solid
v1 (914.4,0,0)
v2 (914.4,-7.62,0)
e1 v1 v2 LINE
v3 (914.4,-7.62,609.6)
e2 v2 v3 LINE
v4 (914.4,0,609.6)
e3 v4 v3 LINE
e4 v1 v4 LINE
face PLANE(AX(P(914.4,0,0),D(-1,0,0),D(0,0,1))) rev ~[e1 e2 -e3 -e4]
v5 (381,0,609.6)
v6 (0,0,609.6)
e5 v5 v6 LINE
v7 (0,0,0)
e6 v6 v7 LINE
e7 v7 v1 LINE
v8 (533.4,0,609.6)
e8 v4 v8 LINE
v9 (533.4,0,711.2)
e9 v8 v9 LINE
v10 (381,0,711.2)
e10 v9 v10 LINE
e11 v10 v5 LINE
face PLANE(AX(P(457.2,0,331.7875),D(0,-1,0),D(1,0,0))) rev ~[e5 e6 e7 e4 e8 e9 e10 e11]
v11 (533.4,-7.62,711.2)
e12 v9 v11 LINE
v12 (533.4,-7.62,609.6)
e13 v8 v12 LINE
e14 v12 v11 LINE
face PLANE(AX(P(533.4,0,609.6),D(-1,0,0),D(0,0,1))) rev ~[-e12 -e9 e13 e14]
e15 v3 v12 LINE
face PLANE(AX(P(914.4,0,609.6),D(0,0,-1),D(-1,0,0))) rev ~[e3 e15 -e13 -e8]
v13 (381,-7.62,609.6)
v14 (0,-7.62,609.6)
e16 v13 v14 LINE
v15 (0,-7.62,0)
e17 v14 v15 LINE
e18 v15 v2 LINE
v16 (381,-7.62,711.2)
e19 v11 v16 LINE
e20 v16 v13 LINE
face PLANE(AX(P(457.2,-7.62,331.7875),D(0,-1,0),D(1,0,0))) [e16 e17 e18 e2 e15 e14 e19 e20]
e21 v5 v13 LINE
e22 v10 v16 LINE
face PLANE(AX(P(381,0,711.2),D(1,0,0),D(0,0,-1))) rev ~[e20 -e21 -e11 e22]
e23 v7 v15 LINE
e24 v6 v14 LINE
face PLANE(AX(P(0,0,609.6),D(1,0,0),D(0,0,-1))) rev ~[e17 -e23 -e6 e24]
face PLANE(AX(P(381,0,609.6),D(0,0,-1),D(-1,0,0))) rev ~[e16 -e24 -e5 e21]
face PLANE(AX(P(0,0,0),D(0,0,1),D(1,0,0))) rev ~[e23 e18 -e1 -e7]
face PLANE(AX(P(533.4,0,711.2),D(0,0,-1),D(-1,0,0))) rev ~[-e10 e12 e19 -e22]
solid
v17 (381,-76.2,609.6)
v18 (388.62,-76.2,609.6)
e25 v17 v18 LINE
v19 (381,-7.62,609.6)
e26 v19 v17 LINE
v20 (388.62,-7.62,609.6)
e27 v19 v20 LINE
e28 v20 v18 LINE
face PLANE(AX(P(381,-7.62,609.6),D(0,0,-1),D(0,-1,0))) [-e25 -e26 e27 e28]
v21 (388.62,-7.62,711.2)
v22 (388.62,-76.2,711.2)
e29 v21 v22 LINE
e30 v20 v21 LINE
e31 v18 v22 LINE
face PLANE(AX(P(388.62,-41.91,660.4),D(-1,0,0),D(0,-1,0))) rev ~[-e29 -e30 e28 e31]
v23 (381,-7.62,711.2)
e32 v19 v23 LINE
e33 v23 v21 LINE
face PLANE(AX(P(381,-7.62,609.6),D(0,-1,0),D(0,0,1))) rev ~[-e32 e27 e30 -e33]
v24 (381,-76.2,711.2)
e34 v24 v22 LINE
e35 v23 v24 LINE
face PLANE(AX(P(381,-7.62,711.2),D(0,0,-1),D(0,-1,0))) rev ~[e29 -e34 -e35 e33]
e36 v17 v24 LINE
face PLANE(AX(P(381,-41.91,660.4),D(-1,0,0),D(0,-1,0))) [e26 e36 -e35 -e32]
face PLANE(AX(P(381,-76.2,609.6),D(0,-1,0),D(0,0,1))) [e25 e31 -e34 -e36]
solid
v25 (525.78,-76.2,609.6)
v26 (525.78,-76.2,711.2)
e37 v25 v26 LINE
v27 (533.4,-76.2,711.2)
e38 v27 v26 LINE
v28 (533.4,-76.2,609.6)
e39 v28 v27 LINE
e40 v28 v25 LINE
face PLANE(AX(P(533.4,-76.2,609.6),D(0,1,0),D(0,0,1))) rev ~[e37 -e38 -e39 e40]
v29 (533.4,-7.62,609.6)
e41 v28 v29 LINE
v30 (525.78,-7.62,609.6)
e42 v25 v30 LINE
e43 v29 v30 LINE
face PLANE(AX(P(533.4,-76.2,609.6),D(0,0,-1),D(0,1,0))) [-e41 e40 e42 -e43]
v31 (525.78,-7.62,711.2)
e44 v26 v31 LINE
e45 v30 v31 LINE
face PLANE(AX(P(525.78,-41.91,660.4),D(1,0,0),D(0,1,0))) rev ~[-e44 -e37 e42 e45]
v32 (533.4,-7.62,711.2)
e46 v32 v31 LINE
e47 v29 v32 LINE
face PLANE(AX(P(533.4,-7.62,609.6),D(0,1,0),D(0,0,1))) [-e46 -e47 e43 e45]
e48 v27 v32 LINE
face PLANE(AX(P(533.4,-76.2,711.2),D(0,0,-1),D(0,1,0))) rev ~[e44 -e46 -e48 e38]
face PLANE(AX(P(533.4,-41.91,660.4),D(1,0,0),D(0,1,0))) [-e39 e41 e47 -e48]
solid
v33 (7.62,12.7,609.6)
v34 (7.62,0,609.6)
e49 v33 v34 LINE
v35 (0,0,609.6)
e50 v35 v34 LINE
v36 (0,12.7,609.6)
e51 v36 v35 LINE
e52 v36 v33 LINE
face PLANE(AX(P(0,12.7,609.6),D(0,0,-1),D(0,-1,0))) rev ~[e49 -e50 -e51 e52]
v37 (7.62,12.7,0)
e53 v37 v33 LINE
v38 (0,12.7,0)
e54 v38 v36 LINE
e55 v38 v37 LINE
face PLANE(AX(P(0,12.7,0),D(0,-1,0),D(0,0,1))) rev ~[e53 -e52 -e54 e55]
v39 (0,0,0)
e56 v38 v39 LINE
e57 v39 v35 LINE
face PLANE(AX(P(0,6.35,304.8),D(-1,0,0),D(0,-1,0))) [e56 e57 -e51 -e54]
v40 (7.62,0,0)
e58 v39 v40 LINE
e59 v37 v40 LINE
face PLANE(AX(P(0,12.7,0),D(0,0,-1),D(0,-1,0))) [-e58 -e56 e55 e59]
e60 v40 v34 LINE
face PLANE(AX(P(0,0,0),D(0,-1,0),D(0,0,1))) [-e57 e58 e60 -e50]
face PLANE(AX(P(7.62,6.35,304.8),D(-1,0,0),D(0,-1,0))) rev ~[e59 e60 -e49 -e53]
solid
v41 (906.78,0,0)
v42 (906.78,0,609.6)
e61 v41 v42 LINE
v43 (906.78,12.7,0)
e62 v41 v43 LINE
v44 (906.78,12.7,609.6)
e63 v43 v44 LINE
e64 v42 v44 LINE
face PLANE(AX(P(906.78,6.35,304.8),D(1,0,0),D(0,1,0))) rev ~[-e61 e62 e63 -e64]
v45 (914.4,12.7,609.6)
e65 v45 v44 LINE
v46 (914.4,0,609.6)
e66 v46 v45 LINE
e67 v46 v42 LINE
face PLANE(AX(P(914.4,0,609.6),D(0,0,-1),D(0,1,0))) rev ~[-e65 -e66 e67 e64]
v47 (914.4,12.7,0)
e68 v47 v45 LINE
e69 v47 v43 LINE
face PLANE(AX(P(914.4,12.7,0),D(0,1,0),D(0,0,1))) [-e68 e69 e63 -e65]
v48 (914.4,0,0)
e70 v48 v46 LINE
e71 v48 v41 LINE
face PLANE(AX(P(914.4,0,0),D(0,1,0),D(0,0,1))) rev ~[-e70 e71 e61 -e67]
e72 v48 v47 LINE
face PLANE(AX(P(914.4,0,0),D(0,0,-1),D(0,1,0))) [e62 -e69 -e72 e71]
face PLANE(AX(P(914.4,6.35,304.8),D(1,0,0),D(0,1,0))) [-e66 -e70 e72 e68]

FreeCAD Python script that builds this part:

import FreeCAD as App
import Part
import Sketcher
from FreeCAD import Vector
Q = App.Units.Quantity


def add_polygon(sketch, points):
    """Adds a closed chain of lines whose ends are joined by coincident constraints."""
    first, n = sketch.GeometryCount, len(points)
    for a, b in zip(points, points[1:] + points[:1]):
        sketch.addGeometry(Part.LineSegment(App.Vector(*a, 0), App.Vector(*b, 0)), False)
    for i in range(n):
        sketch.addConstraint(Sketcher.Constraint("Coincident", first + i, 2, first + (i + 1) % n, 1))

doc = App.newDocument("Part")
body = doc.addObject("PartDesign::Body", "Body")

sketch1 = body.newObject("Sketcher::SketchObject", "Sketch")
sketch1.AttachmentSupport = (doc.getObject("XZ_Plane"), [""])
sketch1.MapMode = "FlatFace"
add_polygon(sketch1, [(0, 610), (0, 0), (914, 0), (914, 610), (533, 610), (533, 711), (381, 711), (381, 610)])
sketch1.addConstraint(Sketcher.Constraint("Vertical", 0))
sketch1.addConstraint(Sketcher.Constraint("Horizontal", 1))
sketch1.addConstraint(Sketcher.Constraint("Vertical", 2))
sketch1.addConstraint(Sketcher.Constraint("Horizontal", 3))
sketch1.addConstraint(Sketcher.Constraint("Vertical", 4))
sketch1.addConstraint(Sketcher.Constraint("Horizontal", 5))
sketch1.addConstraint(Sketcher.Constraint("Vertical", 6))
sketch1.addConstraint(Sketcher.Constraint("Horizontal", 7))
sketch1.addConstraint(Sketcher.Constraint("Coincident", 0, 2, -1, 1))
sketch1.addConstraint(Sketcher.Constraint("Horizontal", 3, 2, 6, 2))
sketch1.addConstraint(Sketcher.Constraint("Equal", 3, 7))
sketch1.addConstraint(Sketcher.Constraint("DistanceX", 1, 1, 1, 2, Q("36 in")))
sketch1.addConstraint(Sketcher.Constraint("DistanceX", 3, 2, 3, 1, Q("15 in")))
sketch1.addConstraint(Sketcher.Constraint("DistanceY", 0, 2, 0, 1, Q("24 in")))
sketch1.addConstraint(Sketcher.Constraint("DistanceY", 4, 1, 4, 2, Q("4 in")))
pad1 = body.newObject("PartDesign::Pad", "Pad")
pad1.Profile = sketch1
pad1.Length = Q("0.3 in")
body2 = doc.addObject("PartDesign::Body", "Body001")

sketch2 = body2.newObject("Sketcher::SketchObject", "Sketch001")
sketch2.AttachmentSupport = (doc.getObject("YZ_Plane001"), [""])
sketch2.MapMode = "FlatFace"
sketch2.AttachmentOffset = App.Placement(Vector(0, 0, 15 * 25.4), App.Rotation())
add_polygon(sketch2, [(-8, 711), (-8, 610), (-76, 610), (-76, 711)])
sketch2.addConstraint(Sketcher.Constraint("Vertical", 0))
sketch2.addConstraint(Sketcher.Constraint("Horizontal", 1))
sketch2.addConstraint(Sketcher.Constraint("Vertical", 2))
sketch2.addConstraint(Sketcher.Constraint("Horizontal", 3))
sketch2.addConstraint(Sketcher.Constraint("DistanceY", 0, 2, 0, 1, Q("4 in")))
sketch2.addConstraint(Sketcher.Constraint("DistanceX", 1, 2, 1, 1, Q("2.7 in")))
sketch2.addConstraint(Sketcher.Constraint("DistanceY", -1, 1, 0, 2, Q("24 in")))
sketch2.addConstraint(Sketcher.Constraint("DistanceX", 1, 2, -1, 1, Q("3 in")))
pad2 = body2.newObject("PartDesign::Pad", "Pad001")
pad2.Profile = sketch2
pad2.Length = Q("0.3 in")
body3 = doc.addObject("PartDesign::Body", "Body002")

sketch3 = body3.newObject("Sketcher::SketchObject", "Sketch002")
sketch3.AttachmentSupport = (doc.getObject("YZ_Plane002"), [""])
sketch3.MapMode = "FlatFace"
sketch3.AttachmentOffset = App.Placement(Vector(0, 0, 21 * 25.4), App.Rotation())
add_polygon(sketch3, [(-76, 711), (-76, 610), (-8, 610), (-8, 711)])
sketch3.addConstraint(Sketcher.Constraint("Vertical", 0))
sketch3.addConstraint(Sketcher.Constraint("Horizontal", 1))
sketch3.addConstraint(Sketcher.Constraint("Vertical", 2))
sketch3.addConstraint(Sketcher.Constraint("Horizontal", 3))
sketch3.addConstraint(Sketcher.Constraint("DistanceY", 0, 2, 0, 1, Q("4 in")))
sketch3.addConstraint(Sketcher.Constraint("DistanceX", 1, 1, 1, 2, Q("2.7 in")))
sketch3.addConstraint(Sketcher.Constraint("DistanceX", 0, 2, -1, 1, Q("3 in")))
sketch3.addConstraint(Sketcher.Constraint("DistanceY", -1, 1, 0, 2, Q("24 in")))
pad3 = body3.newObject("PartDesign::Pad", "Pad002")
pad3.Profile = sketch3
pad3.Length = Q("0.3 in")
pad3.Reversed = True
body4 = doc.addObject("PartDesign::Body", "Body003")

sketch4 = body4.newObject("Sketcher::SketchObject", "Sketch003")
sketch4.AttachmentSupport = (doc.getObject("YZ_Plane003"), [""])
sketch4.MapMode = "FlatFace"
sketch4.AttachmentOffset = App.Placement(Vector(0, 0, 36 * 25.4), App.Rotation())
add_polygon(sketch4, [(0, 610), (0, 0), (13, 0), (13, 610)])
sketch4.addConstraint(Sketcher.Constraint("Vertical", 0))
sketch4.addConstraint(Sketcher.Constraint("Horizontal", 1))
sketch4.addConstraint(Sketcher.Constraint("Vertical", 2))
sketch4.addConstraint(Sketcher.Constraint("Horizontal", 3))
sketch4.addConstraint(Sketcher.Constraint("Coincident", 0, 2, -1, 1))
sketch4.addConstraint(Sketcher.Constraint("DistanceY", 0, 2, 0, 1, Q("24 in")))
sketch4.addConstraint(Sketcher.Constraint("DistanceX", 1, 1, 1, 2, Q("0.5 in")))
pad4 = body4.newObject("PartDesign::Pad", "Pad003")
pad4.Profile = sketch4
pad4.Length = Q("0.3 in")
pad4.Reversed = True
body5 = doc.addObject("PartDesign::Body", "Body004")

sketch5 = body5.newObject("Sketcher::SketchObject", "Sketch004")
sketch5.AttachmentSupport = (doc.getObject("YZ_Plane004"), [""])
sketch5.MapMode = "FlatFace"
add_polygon(sketch5, [(13, 610), (13, 0), (0, 0), (0, 610)])
sketch5.addConstraint(Sketcher.Constraint("Vertical", 0))
sketch5.addConstraint(Sketcher.Constraint("Horizontal", 1))
sketch5.addConstraint(Sketcher.Constraint("Vertical", 2))
sketch5.addConstraint(Sketcher.Constraint("Horizontal", 3))
sketch5.addConstraint(Sketcher.Constraint("Coincident", 1, 2, -1, 1))
sketch5.addConstraint(Sketcher.Constraint("DistanceY", 0, 2, 0, 1, Q("24 in")))
sketch5.addConstraint(Sketcher.Constraint("DistanceX", 1, 2, 1, 1, Q("0.5 in")))
pad5 = body5.newObject("PartDesign::Pad", "Pad004")
pad5.Profile = sketch5
pad5.Length = Q("0.3 in")

doc.recompute()
